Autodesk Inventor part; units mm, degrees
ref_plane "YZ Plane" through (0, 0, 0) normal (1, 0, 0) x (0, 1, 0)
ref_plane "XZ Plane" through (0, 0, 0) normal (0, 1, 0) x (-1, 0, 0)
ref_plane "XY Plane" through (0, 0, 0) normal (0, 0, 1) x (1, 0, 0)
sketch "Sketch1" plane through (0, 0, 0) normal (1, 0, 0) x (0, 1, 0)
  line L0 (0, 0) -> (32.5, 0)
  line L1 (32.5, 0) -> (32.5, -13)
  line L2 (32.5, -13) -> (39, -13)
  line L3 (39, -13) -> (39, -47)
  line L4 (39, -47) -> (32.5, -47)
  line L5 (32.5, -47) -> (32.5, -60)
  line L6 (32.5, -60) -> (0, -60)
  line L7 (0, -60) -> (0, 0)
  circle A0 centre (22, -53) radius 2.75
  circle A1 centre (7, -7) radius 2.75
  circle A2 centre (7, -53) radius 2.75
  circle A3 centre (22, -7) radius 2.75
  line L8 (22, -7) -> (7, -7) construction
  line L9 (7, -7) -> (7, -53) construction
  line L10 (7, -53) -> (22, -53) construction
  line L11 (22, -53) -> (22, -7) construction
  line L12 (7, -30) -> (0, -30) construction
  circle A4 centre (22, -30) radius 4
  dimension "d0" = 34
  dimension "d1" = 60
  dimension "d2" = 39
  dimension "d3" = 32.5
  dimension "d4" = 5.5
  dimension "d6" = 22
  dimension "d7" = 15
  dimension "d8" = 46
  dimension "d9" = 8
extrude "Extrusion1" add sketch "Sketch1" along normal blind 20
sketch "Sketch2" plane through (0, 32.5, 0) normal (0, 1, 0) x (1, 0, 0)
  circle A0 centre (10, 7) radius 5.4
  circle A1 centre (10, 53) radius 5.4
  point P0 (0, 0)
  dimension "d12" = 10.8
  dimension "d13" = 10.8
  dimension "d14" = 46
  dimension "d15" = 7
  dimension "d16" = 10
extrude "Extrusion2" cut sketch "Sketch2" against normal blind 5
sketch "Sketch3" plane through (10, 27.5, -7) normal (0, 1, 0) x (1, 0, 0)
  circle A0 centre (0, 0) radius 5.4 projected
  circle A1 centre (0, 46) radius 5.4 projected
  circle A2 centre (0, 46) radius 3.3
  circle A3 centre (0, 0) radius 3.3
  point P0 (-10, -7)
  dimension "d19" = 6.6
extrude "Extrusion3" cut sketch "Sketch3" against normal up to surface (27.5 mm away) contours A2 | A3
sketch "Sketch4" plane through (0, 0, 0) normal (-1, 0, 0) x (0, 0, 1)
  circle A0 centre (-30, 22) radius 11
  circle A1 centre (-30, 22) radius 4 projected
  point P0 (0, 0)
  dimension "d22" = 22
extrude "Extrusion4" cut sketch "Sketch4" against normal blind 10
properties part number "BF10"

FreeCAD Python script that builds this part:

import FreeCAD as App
import Part
import Sketcher

V = App.Vector
Q = App.Units.Quantity


def add_polygon(sketch, points):
    """Adds a closed chain of lines whose ends are joined by coincident constraints."""
    first, n = sketch.GeometryCount, len(points)
    for a, b in zip(points, points[1:] + points[:1]):
        sketch.addGeometry(Part.LineSegment(App.Vector(*a, 0), App.Vector(*b, 0)), False)
    for i in range(n):
        sketch.addConstraint(Sketcher.Constraint("Coincident", first + i, 2, first + (i + 1) % n, 1))

doc = App.newDocument("Part")
body = doc.addObject("PartDesign::Body", "Body")

# Sketch on YZ plane
sketch1 = body.newObject("Sketcher::SketchObject", "Sketch")
sketch1.AttachmentSupport = (doc.getObject("YZ_Plane"), [""])
sketch1.MapMode = "FlatFace"
add_polygon(sketch1, [(32.5, 0), (0, 0), (0, -60), (32.5, -60), (32.5, -47), (39, -47), (39, -13), (32.5, -13)])  # lines 0-7
sketch1.addGeometry(Part.Circle(V(7, -53, 0), V(0, 0, 1), 2.75), False)  # 8
sketch1.addGeometry(Part.Circle(V(22, -53, 0), V(0, 0, 1), 2.75), False)  # 9
sketch1.addGeometry(Part.Circle(V(7, -7, 0), V(0, 0, 1), 2.75), False)  # 10
sketch1.addGeometry(Part.Circle(V(22, -30, 0), V(0, 0, 1), 4), False)  # 11
sketch1.addGeometry(Part.Circle(V(22, -7, 0), V(0, 0, 1), 2.75), False)  # 12
sketch1.addConstraint(Sketcher.Constraint("Horizontal", 0))
sketch1.addConstraint(Sketcher.Constraint("Vertical", 1))
sketch1.addConstraint(Sketcher.Constraint("Horizontal", 2))
sketch1.addConstraint(Sketcher.Constraint("Vertical", 3))
sketch1.addConstraint(Sketcher.Constraint("Horizontal", 4))
sketch1.addConstraint(Sketcher.Constraint("Vertical", 5))
sketch1.addConstraint(Sketcher.Constraint("Horizontal", 6))
sketch1.addConstraint(Sketcher.Constraint("Vertical", 7))
sketch1.addConstraint(Sketcher.Constraint("Coincident", 0, 2, -1, 1))
sketch1.addConstraint(Sketcher.Constraint("Equal", 8, 9))
sketch1.addConstraint(Sketcher.Constraint("Equal", 9, 10))
sketch1.addConstraint(Sketcher.Constraint("Equal", 10, 12))
sketch1.addConstraint(Sketcher.Constraint("Horizontal", 8, 3, 9, 3))
sketch1.addConstraint(Sketcher.Constraint("Horizontal", 10, 3, 12, 3))
sketch1.addConstraint(Sketcher.Constraint("Vertical", 8, 3, 10, 3))
sketch1.addConstraint(Sketcher.Constraint("Vertical", 9, 3, 11, 3))
sketch1.addConstraint(Sketcher.Constraint("Vertical", 11, 3, 12, 3))
sketch1.addConstraint(Sketcher.Constraint("Vertical", 3, 2, 6, 2))
sketch1.addConstraint(Sketcher.Constraint("Equal", 3, 7))
sketch1.addConstraint(Sketcher.Constraint("Diameter", 11, Q("8 mm")))
sketch1.addConstraint(Sketcher.Constraint("Diameter", 8, Q("5.5 mm")))
sketch1.addConstraint(Sketcher.Constraint("DistanceY", 1, 2, 1, 1, Q("60 mm")))
sketch1.addConstraint(Sketcher.Constraint("DistanceY", 5, 1, 5, 2, Q("34 mm")))
sketch1.addConstraint(Sketcher.Constraint("DistanceX", 0, 2, 0, 1, Q("32.5 mm")))
sketch1.addConstraint(Sketcher.Constraint("DistanceX", -1, 1, 9, 3, Q("22 mm")))
sketch1.addConstraint(Sketcher.Constraint("DistanceX", -1, 1, 4, 2, Q("39 mm")))
sketch1.addConstraint(Sketcher.Constraint("DistanceX", 8, 3, 9, 3, Q("15 mm")))
sketch1.addConstraint(Sketcher.Constraint("DistanceY", 8, 3, 10, 3, Q("46 mm")))
sketch1.addConstraint(Sketcher.Constraint("DistanceY", 8, 3, -1, 1, Q("53 mm")))
sketch1.addConstraint(Sketcher.Constraint("DistanceY", 11, 3, -1, 1, Q("30 mm")))
pad1 = body.newObject("PartDesign::Pad", "Pad")
pad1.Profile = sketch1
pad1.Length = 20

# Sketch on XZ plane
sketch2 = body.newObject("Sketcher::SketchObject", "Sketch001")
sketch2.AttachmentSupport = (doc.getObject("XZ_Plane"), [""])
sketch2.MapMode = "FlatFace"
sketch2.AttachmentOffset = App.Placement(V(0, 0, -32.5), App.Rotation())
sketch2.addGeometry(Part.Circle(V(10, -7, 0), V(0, 0, 1), 5.4), False)
sketch2.addGeometry(Part.Circle(V(10, -53, 0), V(0, 0, 1), 5.4), False)
sketch2.addConstraint(Sketcher.Constraint("Equal", 0, 1))
sketch2.addConstraint(Sketcher.Constraint("Vertical", 0, 3, 1, 3))
sketch2.addConstraint(Sketcher.Constraint("Diameter", 0, Q("10.8 mm")))
sketch2.addConstraint(Sketcher.Constraint("DistanceX", -1, 1, 0, 3, Q("10 mm")))
sketch2.addConstraint(Sketcher.Constraint("DistanceY", 0, 3, -1, 1, Q("7 mm")))
sketch2.addConstraint(Sketcher.Constraint("DistanceY", 1, 3, 0, 3, Q("46 mm")))
pocket1 = body.newObject("PartDesign::Pocket", "Pocket")
pocket1.Profile = sketch2
pocket1.Length = 5
pocket1.Reversed = True

# Sketch on XZ plane
sketch3 = body.newObject("Sketcher::SketchObject", "Sketch002")
sketch3.AttachmentSupport = (doc.getObject("XZ_Plane"), [""])
sketch3.MapMode = "FlatFace"
sketch3.AttachmentOffset = App.Placement(V(0, 0, -27.5), App.Rotation())
sketch3.addGeometry(Part.Circle(V(10, -53, 0), V(0, 0, 1), 3.3), False)
sketch3.addGeometry(Part.Circle(V(10, -7, 0), V(0, 0, 1), 3.3), False)
sketch3.addConstraint(Sketcher.Constraint("Equal", 0, 1))
sketch3.addConstraint(Sketcher.Constraint("Vertical", 0, 3, 1, 3))
sketch3.addConstraint(Sketcher.Constraint("Diameter", 0, Q("6.6 mm")))
sketch3.addConstraint(Sketcher.Constraint("DistanceX", -1, 1, 0, 3, Q("10 mm")))
sketch3.addConstraint(Sketcher.Constraint("DistanceY", 0, 3, -1, 1, Q("53 mm")))
sketch3.addConstraint(Sketcher.Constraint("DistanceY", 1, 3, -1, 1, Q("7 mm")))
pocket2 = body.newObject("PartDesign::Pocket", "Pocket001")
pocket2.Profile = sketch3
pocket2.Length = 27.5
pocket2.Reversed = True

# Sketch on YZ plane
sketch4 = body.newObject("Sketcher::SketchObject", "Sketch003")
sketch4.AttachmentSupport = (doc.getObject("YZ_Plane"), [""])
sketch4.MapMode = "FlatFace"
sketch4.addGeometry(Part.Circle(V(22, -30, 0), V(0, 0, 1), 11), False)
sketch4.addGeometry(Part.Circle(V(22, -30, 0), V(0, 0, 1), 4), False)
sketch4.addConstraint(Sketcher.Constraint("Coincident", 1, 3, 0, 3))
sketch4.addConstraint(Sketcher.Constraint("Diameter", 0, Q("22 mm")))
sketch4.addConstraint(Sketcher.Constraint("Diameter", 1, Q("8 mm")))
sketch4.addConstraint(Sketcher.Constraint("DistanceX", -1, 1, 0, 3, Q("22 mm")))
sketch4.addConstraint(Sketcher.Constraint("DistanceY", 0, 3, -1, 1, Q("30 mm")))
pocket3 = body.newObject("PartDesign::Pocket", "Pocket002")
pocket3.Profile = sketch4
pocket3.Length = 10
pocket3.Reversed = True

doc.recompute()
